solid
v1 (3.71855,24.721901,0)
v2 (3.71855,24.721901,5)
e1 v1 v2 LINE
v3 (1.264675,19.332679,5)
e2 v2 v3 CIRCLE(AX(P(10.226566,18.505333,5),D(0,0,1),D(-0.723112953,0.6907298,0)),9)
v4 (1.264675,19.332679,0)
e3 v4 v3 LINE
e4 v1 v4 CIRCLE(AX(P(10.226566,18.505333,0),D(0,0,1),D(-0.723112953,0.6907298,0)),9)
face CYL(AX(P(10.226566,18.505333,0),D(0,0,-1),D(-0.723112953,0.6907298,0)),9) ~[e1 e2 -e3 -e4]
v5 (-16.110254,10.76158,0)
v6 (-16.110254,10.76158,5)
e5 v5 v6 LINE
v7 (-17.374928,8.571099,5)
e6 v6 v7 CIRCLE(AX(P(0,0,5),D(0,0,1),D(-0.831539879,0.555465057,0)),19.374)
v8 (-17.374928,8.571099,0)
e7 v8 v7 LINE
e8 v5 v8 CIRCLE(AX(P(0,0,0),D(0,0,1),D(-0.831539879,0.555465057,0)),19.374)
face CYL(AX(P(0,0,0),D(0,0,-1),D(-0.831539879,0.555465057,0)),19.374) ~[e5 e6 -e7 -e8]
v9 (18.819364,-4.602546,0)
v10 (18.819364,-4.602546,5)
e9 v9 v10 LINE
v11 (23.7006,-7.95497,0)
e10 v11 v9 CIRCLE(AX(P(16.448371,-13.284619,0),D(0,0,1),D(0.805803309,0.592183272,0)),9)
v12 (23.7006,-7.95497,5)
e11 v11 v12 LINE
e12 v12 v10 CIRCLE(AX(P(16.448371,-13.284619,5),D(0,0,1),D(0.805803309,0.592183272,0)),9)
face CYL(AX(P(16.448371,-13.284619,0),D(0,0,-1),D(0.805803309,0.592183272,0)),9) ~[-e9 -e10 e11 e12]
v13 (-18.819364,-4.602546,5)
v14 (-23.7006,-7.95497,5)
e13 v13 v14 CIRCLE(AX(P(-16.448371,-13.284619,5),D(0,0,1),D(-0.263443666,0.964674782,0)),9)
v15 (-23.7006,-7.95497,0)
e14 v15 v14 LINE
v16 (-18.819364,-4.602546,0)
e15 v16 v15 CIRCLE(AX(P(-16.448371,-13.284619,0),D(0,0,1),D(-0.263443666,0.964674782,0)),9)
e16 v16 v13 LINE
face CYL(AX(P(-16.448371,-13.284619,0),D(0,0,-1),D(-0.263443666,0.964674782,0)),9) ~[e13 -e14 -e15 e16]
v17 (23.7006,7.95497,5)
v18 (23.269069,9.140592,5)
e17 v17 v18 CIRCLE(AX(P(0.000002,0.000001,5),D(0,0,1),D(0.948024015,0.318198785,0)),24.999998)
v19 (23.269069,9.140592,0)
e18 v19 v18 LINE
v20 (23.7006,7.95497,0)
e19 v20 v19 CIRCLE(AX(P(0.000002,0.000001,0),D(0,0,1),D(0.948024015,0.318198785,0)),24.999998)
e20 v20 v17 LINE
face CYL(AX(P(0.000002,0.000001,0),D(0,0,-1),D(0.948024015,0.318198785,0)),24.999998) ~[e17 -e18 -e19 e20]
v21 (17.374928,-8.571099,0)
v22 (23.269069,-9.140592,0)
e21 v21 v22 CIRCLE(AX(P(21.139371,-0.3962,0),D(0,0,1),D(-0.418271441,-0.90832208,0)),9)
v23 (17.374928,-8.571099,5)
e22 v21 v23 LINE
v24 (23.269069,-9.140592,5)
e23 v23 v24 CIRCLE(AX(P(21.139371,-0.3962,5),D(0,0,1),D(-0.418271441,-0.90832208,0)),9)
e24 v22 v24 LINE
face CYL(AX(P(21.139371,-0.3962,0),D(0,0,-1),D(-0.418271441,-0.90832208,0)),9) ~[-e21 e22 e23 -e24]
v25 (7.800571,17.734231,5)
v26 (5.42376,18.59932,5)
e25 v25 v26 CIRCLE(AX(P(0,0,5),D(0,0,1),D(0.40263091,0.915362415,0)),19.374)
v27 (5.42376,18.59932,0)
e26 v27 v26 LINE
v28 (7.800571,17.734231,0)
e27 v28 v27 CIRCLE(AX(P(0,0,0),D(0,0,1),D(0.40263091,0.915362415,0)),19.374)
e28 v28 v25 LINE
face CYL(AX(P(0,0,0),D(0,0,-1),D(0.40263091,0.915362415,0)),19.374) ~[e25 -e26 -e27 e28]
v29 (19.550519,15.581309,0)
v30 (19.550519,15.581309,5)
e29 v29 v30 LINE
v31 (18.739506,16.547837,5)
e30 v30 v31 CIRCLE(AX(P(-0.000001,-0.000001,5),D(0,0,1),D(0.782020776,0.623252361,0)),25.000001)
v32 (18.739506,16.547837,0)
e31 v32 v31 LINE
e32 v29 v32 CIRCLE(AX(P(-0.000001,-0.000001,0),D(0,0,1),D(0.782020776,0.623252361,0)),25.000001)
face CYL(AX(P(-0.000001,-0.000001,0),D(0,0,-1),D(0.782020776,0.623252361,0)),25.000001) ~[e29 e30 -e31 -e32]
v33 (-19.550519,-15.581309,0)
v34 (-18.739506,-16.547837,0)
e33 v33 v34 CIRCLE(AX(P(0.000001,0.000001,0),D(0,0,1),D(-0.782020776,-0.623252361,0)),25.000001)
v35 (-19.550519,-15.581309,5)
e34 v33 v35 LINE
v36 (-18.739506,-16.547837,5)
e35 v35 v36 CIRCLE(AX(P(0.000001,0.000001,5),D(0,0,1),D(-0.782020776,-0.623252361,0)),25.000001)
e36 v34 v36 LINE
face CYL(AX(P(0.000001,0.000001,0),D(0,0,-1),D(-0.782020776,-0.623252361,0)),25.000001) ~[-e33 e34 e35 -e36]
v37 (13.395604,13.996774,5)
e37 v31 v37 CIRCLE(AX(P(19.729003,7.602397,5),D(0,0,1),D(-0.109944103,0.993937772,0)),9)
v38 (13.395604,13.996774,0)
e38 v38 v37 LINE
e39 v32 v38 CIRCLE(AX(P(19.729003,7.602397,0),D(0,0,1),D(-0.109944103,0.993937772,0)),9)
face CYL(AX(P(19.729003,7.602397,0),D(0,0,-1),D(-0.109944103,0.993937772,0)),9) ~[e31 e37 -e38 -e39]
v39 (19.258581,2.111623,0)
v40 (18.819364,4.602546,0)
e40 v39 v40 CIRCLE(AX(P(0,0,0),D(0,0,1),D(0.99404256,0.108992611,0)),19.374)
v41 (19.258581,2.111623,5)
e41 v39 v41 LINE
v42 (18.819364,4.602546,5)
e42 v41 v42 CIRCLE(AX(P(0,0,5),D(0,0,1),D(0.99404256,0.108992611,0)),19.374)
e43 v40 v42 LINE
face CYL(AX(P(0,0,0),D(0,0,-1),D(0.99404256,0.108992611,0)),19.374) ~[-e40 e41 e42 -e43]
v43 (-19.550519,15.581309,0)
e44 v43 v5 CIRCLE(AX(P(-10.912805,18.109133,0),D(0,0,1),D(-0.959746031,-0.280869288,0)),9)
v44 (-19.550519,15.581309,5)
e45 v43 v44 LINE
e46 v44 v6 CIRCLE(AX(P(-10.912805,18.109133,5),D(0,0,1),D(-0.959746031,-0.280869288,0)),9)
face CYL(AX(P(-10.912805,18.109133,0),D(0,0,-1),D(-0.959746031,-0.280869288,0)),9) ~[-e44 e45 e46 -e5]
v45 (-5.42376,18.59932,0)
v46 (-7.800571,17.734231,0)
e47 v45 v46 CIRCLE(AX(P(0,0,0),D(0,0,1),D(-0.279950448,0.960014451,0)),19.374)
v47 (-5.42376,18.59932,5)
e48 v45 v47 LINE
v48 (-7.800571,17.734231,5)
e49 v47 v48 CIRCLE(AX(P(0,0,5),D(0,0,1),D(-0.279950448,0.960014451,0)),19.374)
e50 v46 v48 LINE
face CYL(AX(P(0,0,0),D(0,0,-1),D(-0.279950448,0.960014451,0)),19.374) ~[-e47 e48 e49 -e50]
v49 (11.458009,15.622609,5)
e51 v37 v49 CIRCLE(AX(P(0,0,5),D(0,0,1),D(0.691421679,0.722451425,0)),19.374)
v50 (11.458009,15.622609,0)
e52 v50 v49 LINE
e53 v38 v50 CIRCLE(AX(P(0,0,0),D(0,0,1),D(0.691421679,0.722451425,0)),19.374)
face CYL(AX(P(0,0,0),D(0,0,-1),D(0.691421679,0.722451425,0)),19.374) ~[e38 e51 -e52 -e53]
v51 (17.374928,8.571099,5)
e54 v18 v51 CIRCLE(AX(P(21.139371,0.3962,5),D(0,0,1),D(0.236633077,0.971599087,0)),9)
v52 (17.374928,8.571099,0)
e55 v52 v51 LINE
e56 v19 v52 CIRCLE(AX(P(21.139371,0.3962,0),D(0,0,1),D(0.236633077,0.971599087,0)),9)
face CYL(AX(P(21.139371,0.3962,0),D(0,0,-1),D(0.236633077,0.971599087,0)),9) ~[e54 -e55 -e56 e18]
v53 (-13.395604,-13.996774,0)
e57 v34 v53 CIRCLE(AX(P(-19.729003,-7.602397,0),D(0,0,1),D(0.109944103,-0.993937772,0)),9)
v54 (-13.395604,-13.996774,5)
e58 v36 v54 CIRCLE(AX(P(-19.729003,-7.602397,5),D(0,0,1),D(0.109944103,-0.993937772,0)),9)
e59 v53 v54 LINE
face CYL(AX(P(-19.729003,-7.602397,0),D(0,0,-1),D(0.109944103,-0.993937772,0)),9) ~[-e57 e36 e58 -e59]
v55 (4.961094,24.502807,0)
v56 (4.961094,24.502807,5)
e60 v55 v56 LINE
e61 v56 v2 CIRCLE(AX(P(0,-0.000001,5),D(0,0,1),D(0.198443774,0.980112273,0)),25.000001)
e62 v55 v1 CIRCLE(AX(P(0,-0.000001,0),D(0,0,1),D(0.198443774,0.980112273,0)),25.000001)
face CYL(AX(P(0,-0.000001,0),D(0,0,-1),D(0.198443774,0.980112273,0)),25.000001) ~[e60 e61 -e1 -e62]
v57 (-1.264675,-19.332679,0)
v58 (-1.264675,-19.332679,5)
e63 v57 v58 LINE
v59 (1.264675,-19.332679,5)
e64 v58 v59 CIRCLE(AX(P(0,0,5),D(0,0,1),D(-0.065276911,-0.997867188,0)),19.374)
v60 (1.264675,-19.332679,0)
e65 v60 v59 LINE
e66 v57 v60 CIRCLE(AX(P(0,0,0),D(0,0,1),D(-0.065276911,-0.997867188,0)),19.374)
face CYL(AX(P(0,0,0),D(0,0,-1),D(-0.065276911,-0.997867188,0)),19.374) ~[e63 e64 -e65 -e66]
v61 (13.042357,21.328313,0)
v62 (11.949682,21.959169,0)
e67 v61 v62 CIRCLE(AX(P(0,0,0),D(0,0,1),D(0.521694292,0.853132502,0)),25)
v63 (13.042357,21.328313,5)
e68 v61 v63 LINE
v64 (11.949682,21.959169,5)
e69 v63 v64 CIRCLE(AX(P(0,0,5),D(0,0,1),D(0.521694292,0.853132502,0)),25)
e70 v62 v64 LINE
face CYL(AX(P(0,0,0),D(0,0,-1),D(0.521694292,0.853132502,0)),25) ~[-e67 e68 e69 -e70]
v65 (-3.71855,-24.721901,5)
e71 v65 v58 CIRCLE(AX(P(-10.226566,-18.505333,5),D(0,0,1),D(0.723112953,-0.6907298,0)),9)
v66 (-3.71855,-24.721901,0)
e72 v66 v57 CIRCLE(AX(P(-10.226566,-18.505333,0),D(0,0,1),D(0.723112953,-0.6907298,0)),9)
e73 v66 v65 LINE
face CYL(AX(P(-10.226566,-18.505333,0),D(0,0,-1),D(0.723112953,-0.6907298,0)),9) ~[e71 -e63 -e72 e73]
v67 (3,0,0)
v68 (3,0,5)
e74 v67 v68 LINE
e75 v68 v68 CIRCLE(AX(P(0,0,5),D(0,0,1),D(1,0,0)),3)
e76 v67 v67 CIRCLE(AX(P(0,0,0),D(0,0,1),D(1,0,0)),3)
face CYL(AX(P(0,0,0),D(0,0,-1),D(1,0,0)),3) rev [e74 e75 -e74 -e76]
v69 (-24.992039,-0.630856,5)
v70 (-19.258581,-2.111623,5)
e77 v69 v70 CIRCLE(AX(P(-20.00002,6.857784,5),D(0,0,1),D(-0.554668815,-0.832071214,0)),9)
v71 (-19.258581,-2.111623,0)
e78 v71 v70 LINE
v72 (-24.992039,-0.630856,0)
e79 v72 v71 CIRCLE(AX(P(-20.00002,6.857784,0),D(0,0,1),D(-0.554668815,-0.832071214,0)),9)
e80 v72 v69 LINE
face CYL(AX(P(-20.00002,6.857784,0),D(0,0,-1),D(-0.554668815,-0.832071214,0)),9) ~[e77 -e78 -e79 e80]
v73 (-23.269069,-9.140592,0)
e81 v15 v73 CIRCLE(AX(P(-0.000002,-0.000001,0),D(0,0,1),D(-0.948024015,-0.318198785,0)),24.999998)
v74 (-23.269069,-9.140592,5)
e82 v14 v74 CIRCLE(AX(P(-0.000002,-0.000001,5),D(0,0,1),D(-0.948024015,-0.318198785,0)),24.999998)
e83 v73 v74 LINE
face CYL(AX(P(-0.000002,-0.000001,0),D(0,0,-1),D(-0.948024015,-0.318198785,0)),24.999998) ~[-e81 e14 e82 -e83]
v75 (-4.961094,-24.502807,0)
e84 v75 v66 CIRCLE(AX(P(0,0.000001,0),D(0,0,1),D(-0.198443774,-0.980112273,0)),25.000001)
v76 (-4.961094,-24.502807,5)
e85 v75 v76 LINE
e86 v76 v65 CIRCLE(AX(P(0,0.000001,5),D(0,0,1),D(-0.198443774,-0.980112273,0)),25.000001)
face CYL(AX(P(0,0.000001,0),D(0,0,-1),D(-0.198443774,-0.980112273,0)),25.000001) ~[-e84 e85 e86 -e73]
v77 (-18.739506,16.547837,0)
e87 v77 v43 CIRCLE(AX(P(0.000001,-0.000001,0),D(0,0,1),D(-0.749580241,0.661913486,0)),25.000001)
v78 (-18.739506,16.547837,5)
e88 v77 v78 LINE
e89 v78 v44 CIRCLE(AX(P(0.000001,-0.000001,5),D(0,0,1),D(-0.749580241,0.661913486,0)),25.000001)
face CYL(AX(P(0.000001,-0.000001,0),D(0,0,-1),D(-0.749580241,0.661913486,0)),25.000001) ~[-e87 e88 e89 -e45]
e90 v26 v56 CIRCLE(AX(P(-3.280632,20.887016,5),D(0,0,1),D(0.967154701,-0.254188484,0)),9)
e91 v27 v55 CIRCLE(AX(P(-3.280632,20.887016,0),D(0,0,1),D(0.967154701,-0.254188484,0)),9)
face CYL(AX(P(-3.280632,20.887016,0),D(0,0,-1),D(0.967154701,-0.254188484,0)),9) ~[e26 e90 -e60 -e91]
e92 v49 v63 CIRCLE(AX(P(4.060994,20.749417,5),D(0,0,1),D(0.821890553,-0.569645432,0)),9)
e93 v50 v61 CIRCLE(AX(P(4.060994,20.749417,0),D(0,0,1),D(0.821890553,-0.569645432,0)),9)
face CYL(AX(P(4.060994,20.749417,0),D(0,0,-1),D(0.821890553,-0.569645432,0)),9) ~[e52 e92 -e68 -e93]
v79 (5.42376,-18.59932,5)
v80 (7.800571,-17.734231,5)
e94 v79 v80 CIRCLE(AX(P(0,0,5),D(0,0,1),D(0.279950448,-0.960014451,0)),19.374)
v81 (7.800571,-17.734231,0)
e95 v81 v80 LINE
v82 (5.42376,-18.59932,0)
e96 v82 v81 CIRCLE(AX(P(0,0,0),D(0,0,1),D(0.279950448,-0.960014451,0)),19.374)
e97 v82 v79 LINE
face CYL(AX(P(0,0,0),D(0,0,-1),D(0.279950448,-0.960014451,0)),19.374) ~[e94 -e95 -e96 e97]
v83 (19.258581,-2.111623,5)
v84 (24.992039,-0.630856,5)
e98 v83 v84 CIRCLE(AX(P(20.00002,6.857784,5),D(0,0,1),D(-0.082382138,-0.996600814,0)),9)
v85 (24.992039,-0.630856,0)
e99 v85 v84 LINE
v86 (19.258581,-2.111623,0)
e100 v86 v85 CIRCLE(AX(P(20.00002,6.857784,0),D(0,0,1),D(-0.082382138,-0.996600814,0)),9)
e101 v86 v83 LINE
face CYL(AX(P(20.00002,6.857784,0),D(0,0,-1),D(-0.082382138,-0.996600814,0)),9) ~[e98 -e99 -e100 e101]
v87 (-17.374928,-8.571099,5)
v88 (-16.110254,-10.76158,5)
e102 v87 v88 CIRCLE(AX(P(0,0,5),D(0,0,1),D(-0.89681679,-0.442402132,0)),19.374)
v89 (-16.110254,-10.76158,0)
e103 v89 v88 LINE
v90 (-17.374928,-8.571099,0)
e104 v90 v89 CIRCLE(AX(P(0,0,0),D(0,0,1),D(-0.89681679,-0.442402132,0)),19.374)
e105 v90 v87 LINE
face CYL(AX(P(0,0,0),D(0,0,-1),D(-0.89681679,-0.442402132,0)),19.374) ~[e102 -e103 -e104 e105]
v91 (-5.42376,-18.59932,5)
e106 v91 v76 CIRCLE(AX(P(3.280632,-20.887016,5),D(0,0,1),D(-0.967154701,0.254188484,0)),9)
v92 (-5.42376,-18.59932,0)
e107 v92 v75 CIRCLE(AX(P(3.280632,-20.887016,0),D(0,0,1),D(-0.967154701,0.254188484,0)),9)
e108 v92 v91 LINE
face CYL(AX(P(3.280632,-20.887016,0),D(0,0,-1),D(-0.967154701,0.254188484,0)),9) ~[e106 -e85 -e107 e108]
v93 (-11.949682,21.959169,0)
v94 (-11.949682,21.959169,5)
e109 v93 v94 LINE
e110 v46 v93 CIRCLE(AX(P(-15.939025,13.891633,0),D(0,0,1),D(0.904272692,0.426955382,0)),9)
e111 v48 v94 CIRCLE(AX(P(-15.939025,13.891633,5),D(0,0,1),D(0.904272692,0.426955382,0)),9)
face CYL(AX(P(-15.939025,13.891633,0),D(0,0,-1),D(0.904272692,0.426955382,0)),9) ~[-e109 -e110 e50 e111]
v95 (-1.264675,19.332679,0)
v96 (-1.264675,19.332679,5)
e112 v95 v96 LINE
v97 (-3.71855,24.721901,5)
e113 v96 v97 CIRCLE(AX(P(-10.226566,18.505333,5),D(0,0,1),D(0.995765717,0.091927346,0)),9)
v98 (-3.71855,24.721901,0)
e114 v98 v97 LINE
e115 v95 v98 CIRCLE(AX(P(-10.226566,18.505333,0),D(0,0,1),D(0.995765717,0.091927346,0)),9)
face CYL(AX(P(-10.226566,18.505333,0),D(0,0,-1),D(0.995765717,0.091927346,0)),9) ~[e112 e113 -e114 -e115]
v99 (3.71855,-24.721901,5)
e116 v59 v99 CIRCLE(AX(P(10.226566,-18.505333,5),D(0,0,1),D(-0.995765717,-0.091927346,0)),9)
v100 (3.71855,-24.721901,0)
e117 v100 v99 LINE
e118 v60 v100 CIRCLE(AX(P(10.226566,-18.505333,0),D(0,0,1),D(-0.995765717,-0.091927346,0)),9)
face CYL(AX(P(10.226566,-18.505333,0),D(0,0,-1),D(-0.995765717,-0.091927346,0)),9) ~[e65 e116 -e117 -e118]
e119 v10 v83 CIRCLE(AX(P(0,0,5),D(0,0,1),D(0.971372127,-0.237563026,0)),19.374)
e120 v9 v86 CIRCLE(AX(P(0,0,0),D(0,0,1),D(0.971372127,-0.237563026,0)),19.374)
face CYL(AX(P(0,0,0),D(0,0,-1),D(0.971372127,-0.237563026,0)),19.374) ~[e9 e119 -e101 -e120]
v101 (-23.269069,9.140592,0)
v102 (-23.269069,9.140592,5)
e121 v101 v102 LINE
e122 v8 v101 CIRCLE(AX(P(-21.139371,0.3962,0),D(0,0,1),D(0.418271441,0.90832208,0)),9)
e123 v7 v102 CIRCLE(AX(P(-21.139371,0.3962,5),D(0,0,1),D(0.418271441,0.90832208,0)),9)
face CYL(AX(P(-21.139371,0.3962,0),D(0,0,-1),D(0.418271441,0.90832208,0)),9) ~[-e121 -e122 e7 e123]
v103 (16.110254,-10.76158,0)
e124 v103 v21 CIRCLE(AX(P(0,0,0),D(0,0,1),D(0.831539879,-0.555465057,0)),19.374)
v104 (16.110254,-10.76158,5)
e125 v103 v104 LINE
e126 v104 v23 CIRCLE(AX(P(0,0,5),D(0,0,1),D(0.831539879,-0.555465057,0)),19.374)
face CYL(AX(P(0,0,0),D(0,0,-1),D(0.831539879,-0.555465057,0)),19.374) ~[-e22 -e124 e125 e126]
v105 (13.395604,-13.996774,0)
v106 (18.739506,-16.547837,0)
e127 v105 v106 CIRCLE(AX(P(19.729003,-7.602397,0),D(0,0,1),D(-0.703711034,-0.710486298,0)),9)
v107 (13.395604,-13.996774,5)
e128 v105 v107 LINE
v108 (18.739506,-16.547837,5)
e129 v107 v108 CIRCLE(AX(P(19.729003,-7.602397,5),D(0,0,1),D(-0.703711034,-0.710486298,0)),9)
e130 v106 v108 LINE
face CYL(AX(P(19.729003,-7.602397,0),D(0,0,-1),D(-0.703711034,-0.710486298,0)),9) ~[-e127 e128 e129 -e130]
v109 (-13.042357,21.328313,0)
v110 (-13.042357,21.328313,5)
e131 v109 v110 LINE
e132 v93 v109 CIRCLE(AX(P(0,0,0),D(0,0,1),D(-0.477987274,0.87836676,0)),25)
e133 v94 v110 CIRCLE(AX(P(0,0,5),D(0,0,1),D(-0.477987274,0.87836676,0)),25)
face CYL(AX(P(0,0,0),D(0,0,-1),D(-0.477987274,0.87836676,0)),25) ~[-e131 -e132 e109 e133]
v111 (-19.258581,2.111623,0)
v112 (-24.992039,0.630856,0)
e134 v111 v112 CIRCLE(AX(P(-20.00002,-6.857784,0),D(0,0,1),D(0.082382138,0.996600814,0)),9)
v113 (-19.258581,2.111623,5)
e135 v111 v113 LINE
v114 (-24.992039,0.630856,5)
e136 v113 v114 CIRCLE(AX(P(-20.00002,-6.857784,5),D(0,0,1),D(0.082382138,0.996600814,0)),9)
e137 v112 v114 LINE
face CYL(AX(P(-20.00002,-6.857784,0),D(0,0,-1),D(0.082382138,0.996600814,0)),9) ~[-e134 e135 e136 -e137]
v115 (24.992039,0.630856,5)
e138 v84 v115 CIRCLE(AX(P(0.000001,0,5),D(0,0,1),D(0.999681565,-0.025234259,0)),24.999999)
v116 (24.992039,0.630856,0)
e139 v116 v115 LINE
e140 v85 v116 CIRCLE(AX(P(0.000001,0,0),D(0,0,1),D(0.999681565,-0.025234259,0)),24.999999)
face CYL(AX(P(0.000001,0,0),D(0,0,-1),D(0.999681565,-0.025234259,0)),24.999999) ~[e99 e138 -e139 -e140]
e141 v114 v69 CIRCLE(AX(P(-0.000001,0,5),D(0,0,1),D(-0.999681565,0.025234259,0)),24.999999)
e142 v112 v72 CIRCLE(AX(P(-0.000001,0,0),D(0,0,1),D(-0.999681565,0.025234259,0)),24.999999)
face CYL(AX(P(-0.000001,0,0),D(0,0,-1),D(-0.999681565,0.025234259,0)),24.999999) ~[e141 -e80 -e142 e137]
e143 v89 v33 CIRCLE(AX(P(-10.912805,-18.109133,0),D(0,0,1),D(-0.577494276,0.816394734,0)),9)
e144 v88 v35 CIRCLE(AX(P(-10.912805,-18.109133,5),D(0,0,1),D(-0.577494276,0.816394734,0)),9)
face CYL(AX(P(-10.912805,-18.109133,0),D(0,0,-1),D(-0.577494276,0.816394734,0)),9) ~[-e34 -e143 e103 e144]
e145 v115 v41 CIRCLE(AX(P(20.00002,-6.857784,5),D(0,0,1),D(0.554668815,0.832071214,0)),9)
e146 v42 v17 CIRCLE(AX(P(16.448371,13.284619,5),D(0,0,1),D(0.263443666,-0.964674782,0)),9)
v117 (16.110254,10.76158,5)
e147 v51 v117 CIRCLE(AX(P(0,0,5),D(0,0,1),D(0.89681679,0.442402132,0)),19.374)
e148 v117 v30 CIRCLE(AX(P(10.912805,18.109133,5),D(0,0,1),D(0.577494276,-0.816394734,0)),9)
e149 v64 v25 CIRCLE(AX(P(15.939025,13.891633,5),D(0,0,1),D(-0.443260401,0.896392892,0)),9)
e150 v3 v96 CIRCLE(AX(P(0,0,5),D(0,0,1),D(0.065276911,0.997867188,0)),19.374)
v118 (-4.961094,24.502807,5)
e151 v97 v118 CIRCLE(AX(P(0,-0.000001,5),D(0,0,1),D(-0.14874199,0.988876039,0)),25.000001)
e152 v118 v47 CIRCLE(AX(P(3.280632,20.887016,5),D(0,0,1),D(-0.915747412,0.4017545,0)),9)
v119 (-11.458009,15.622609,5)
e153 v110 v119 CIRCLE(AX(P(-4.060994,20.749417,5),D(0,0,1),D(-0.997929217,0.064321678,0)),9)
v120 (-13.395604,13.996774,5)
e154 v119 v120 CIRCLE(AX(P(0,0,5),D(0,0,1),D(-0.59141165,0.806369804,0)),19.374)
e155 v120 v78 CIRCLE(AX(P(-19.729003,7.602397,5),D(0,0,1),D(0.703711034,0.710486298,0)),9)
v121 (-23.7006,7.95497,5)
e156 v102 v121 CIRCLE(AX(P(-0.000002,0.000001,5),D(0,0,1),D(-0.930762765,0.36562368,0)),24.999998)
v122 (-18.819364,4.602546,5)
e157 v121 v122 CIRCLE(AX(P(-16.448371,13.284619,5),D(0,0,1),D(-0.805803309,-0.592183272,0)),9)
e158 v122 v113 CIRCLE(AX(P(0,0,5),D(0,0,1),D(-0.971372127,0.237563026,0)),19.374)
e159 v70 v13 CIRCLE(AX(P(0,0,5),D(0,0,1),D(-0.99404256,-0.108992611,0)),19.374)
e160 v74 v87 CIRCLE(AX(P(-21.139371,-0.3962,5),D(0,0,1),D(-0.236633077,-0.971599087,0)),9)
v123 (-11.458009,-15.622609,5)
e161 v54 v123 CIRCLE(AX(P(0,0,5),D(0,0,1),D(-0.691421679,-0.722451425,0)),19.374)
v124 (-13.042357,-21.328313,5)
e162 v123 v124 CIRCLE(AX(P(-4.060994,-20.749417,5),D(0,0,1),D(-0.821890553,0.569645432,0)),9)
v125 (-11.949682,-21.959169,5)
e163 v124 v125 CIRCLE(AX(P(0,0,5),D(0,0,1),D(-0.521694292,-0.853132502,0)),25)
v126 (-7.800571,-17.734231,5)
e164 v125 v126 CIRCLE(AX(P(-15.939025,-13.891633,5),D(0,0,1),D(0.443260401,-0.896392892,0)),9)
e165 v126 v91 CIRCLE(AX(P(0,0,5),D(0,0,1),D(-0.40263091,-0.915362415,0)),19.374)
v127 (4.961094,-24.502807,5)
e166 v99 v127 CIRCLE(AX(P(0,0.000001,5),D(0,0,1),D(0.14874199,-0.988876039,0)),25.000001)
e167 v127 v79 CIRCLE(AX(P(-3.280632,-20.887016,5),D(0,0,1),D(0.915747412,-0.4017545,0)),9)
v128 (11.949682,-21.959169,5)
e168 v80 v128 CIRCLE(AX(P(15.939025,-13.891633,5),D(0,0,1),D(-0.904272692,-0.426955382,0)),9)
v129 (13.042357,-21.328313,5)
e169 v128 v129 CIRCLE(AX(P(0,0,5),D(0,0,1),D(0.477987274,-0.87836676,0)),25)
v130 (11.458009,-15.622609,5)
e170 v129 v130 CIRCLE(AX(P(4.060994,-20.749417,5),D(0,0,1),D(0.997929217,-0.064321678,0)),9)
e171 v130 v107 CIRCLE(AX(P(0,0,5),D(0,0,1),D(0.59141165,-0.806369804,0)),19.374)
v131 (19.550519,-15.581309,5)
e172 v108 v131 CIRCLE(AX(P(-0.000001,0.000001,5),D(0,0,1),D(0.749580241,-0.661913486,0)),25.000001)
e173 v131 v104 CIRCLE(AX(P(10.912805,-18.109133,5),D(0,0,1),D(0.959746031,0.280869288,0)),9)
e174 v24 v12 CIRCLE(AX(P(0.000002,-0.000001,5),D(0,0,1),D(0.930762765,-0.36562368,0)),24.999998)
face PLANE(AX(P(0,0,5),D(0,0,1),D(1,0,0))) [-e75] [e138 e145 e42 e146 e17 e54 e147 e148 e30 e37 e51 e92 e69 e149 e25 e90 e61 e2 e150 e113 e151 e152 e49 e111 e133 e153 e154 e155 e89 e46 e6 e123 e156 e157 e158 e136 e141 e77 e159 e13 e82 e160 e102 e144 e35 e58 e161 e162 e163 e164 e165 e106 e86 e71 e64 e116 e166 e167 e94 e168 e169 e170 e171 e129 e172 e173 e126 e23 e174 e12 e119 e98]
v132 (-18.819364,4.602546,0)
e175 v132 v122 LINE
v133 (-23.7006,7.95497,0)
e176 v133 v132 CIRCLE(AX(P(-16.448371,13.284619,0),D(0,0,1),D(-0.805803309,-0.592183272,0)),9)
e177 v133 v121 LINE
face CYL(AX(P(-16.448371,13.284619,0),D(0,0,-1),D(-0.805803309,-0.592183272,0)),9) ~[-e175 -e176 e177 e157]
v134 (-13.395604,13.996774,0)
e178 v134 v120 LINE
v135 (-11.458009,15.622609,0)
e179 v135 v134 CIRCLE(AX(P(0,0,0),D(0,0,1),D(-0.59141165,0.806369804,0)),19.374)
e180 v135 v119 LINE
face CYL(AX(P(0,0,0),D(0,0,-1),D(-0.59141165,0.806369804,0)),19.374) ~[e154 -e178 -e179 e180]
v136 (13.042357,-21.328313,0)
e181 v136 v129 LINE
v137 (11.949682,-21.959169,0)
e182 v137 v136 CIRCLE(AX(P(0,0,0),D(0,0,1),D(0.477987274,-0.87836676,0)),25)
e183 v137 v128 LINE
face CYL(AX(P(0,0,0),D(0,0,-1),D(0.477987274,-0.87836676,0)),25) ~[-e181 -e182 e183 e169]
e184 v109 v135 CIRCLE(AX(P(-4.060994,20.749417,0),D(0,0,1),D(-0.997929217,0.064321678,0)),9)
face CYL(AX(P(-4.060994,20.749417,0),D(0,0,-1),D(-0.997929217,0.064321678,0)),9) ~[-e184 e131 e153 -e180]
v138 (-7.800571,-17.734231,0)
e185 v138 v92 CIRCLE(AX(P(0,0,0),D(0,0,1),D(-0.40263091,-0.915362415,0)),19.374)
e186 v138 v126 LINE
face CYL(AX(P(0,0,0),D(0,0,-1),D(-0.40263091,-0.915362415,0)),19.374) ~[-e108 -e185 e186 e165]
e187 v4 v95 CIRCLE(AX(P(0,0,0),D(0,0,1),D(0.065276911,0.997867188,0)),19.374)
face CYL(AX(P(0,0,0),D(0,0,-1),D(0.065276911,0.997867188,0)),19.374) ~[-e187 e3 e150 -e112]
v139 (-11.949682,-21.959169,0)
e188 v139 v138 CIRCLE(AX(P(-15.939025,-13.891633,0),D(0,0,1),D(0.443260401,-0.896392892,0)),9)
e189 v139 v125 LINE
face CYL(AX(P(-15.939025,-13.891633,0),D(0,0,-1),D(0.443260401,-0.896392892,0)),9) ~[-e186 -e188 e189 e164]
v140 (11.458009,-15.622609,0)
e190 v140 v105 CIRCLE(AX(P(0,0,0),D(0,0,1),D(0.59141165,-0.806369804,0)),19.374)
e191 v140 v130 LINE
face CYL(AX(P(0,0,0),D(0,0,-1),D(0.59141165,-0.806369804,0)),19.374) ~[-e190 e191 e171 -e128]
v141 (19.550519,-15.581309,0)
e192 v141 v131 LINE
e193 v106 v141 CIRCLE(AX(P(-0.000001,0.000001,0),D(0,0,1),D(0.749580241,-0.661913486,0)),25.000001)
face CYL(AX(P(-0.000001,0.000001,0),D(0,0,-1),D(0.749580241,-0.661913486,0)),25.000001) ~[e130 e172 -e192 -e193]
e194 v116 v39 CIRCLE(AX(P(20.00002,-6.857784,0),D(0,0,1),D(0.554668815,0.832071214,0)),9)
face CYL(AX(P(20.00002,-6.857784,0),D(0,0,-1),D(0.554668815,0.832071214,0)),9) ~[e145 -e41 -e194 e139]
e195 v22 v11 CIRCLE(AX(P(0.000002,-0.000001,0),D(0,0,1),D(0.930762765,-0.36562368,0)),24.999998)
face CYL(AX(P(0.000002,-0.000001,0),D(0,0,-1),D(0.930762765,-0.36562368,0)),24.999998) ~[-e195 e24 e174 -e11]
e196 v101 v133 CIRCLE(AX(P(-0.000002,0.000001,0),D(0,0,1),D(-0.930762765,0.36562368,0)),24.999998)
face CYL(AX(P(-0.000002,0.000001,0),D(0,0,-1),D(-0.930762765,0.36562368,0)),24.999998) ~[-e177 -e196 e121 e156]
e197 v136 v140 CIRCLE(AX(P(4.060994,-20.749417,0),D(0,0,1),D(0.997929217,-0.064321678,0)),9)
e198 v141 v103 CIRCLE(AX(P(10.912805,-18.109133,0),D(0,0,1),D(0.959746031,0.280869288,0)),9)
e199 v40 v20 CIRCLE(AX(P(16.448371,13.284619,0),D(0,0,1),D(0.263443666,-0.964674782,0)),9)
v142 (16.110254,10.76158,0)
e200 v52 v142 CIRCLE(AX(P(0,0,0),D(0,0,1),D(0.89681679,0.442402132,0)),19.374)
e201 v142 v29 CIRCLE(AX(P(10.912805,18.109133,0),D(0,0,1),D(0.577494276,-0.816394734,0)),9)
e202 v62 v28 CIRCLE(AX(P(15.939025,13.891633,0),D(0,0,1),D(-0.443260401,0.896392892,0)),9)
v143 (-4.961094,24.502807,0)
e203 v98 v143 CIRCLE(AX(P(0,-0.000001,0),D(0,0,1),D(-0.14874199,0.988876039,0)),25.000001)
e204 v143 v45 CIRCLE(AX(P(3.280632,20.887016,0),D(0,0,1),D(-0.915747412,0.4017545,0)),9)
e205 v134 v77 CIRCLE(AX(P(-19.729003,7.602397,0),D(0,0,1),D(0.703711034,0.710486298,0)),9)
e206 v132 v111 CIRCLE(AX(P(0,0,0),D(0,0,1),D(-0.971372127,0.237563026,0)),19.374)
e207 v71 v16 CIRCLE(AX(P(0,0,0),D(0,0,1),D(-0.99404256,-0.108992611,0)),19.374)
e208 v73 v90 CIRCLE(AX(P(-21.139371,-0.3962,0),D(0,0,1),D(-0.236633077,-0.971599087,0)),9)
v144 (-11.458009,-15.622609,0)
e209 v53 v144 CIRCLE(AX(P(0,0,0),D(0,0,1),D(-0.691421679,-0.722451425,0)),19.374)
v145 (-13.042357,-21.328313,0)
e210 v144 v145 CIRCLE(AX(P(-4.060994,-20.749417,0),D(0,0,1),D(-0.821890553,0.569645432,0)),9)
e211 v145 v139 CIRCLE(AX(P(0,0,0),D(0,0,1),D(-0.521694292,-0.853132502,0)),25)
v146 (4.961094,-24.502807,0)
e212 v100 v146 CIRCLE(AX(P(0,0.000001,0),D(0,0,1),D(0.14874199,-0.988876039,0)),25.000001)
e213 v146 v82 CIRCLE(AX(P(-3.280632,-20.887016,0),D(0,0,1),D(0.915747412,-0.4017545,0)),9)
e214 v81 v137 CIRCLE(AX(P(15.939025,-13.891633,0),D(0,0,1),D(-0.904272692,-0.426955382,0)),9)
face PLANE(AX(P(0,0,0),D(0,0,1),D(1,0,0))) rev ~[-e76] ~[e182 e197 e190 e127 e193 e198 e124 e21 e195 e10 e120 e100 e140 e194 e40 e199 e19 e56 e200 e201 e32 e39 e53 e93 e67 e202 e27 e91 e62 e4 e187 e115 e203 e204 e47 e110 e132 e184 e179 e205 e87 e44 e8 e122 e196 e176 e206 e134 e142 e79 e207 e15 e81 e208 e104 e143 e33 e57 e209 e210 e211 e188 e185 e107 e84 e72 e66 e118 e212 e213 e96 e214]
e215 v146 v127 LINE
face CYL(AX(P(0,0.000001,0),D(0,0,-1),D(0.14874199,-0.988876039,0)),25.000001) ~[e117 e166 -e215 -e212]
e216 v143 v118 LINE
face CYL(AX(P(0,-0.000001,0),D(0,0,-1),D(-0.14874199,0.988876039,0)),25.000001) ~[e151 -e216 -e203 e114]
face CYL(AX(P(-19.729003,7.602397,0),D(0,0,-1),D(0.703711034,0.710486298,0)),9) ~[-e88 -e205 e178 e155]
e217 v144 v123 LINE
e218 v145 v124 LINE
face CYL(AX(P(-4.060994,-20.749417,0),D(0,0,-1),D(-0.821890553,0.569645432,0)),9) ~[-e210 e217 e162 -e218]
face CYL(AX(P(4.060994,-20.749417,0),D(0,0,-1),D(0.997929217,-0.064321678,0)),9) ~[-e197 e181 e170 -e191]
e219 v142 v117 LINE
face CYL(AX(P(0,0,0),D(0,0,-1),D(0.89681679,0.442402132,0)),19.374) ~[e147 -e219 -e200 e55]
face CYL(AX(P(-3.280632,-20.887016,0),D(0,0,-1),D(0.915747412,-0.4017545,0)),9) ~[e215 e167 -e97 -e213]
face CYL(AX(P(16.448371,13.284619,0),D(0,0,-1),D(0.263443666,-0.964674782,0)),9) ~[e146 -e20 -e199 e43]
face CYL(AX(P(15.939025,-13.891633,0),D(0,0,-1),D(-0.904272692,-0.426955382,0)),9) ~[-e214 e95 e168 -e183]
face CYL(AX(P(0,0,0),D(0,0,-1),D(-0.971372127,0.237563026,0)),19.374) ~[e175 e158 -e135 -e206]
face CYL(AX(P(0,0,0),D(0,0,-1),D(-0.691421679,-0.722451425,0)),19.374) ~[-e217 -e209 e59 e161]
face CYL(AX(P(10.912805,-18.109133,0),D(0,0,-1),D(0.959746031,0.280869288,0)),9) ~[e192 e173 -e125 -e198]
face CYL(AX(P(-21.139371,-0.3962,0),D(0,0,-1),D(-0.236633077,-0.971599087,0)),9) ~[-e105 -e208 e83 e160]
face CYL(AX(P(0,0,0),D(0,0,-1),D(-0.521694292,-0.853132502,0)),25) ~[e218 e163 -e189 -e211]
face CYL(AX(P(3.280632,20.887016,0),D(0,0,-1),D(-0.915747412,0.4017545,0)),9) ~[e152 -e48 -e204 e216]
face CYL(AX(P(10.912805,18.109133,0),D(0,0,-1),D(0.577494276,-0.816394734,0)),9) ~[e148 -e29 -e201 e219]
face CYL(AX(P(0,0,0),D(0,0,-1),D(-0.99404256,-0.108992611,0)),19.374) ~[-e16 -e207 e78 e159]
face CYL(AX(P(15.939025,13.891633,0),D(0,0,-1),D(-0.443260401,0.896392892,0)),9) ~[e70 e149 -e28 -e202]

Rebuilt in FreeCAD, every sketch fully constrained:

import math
import FreeCAD as App
import Part
import Sketcher

V = App.Vector

doc = App.newDocument("Part")
body = doc.addObject("PartDesign::Body", "Body")

sketch1 = body.newObject("Sketcher::SketchObject", "Sketch")
sketch1.AttachmentSupport = (doc.getObject("XY_Plane"), [""])
sketch1.MapMode = "FlatFace"
sketch1.addGeometry([
    Part.ArcOfCircle(Part.Circle(V(-10.9, 18.1, 0), V(0, 0, 1), 9), math.radians(-164), math.radians(-125)),
    Part.ArcOfCircle(Part.Circle(V(0, 0, 0), V(0, 0, 1), 19.4), math.radians(146.26), math.radians(153.74)),
    Part.ArcOfCircle(Part.Circle(V(-21.1, 0.4, 0), V(0, 0, 1), 9), math.radians(65), math.radians(104)),
    Part.ArcOfCircle(Part.Circle(V(0, 0, 0), V(0, 0, 1), 25), math.radians(158.55), math.radians(161.45)),
    Part.ArcOfCircle(Part.Circle(V(-16.4, 13.3, 0), V(0, 0, 1), 9), math.radians(-144), math.radians(-105)),
    Part.ArcOfCircle(Part.Circle(V(0, 0, 0), V(0, 0, 1), 19.4), math.radians(166.26), math.radians(173.74)),
    Part.ArcOfCircle(Part.Circle(V(-20, -6.9, 0), V(0, 0, 1), 9), math.radians(85), math.radians(124)),
    Part.ArcOfCircle(Part.Circle(V(0, 0, 0), V(0, 0, 1), 25), math.radians(178.55), math.radians(181.45)),
    Part.ArcOfCircle(Part.Circle(V(-20, 6.9, 0), V(0, 0, 1), 9), math.radians(-124), math.radians(-85)),
    Part.ArcOfCircle(Part.Circle(V(0, 0, 0), V(0, 0, 1), 19.4), math.radians(-173.74), math.radians(-166.26)),
    Part.ArcOfCircle(Part.Circle(V(-16.4, -13.3, 0), V(0, 0, 1), 9), math.radians(105), math.radians(144)),
    Part.ArcOfCircle(Part.Circle(V(0, 0, 0), V(0, 0, 1), 25), math.radians(-161.45), math.radians(-158.55)),
    Part.ArcOfCircle(Part.Circle(V(-21.1, -0.4, 0), V(0, 0, 1), 9), math.radians(-104), math.radians(-65)),
    Part.ArcOfCircle(Part.Circle(V(0, 0, 0), V(0, 0, 1), 19.4), math.radians(-153.74), math.radians(-146.26)),
    Part.ArcOfCircle(Part.Circle(V(-10.9, -18.1, 0), V(0, 0, 1), 9), math.radians(125), math.radians(164)),
    Part.ArcOfCircle(Part.Circle(V(0, 0, 0), V(0, 0, 1), 25), math.radians(-141.45), math.radians(-138.55)),
    Part.ArcOfCircle(Part.Circle(V(-19.7, -7.6, 0), V(0, 0, 1), 9), math.radians(-84), math.radians(-45)),
    Part.ArcOfCircle(Part.Circle(V(0, 0, 0), V(0, 0, 1), 19.4), math.radians(-133.74), math.radians(-126.26)),
    Part.ArcOfCircle(Part.Circle(V(-4.1, -20.7, 0), V(0, 0, 1), 9), math.radians(145), math.radians(184)),
    Part.ArcOfCircle(Part.Circle(V(0, 0, 0), V(0, 0, 1), 25), math.radians(-121.45), math.radians(-118.55)),
    Part.ArcOfCircle(Part.Circle(V(-15.9, -13.9, 0), V(0, 0, 1), 9), math.radians(-64), math.radians(-25)),
    Part.ArcOfCircle(Part.Circle(V(0, 0, 0), V(0, 0, 1), 19.4), math.radians(-113.74), math.radians(-106.26)),
    Part.ArcOfCircle(Part.Circle(V(3.3, -20.9, 0), V(0, 0, 1), 9), math.radians(165), math.radians(204)),
    Part.ArcOfCircle(Part.Circle(V(0, 0, 0), V(0, 0, 1), 25), math.radians(-101.45), math.radians(-98.55)),
    Part.ArcOfCircle(Part.Circle(V(-10.2, -18.5, 0), V(0, 0, 1), 9), math.radians(-44), math.radians(-5)),
    Part.ArcOfCircle(Part.Circle(V(0, 0, 0), V(0, 0, 1), 19.4), math.radians(-93.74), math.radians(-86.26)),
    Part.ArcOfCircle(Part.Circle(V(10.2, -18.5, 0), V(0, 0, 1), 9), math.radians(-175), math.radians(-136)),
    Part.ArcOfCircle(Part.Circle(V(0, 0, 0), V(0, 0, 1), 25), math.radians(-81.45), math.radians(-78.55)),
    Part.ArcOfCircle(Part.Circle(V(-3.3, -20.9, 0), V(0, 0, 1), 9), math.radians(-24), math.radians(15)),
    Part.ArcOfCircle(Part.Circle(V(0, 0, 0), V(0, 0, 1), 19.4), math.radians(-73.74), math.radians(-66.26)),
    Part.ArcOfCircle(Part.Circle(V(15.9, -13.9, 0), V(0, 0, 1), 9), math.radians(-155), math.radians(-116)),
    Part.ArcOfCircle(Part.Circle(V(0, 0, 0), V(0, 0, 1), 25), math.radians(-61.45), math.radians(-58.55)),
    Part.ArcOfCircle(Part.Circle(V(4.1, -20.7, 0), V(0, 0, 1), 9), math.radians(-4), math.radians(35)),
    Part.ArcOfCircle(Part.Circle(V(0, 0, 0), V(0, 0, 1), 19.4), math.radians(-53.74), math.radians(-46.26)),
    Part.ArcOfCircle(Part.Circle(V(19.7, -7.6, 0), V(0, 0, 1), 9), math.radians(-135), math.radians(-96)),
    Part.ArcOfCircle(Part.Circle(V(0, 0, 0), V(0, 0, 1), 25), math.radians(-41.45), math.radians(-38.55)),
    Part.ArcOfCircle(Part.Circle(V(10.9, -18.1, 0), V(0, 0, 1), 9), math.radians(16), math.radians(55)),
    Part.ArcOfCircle(Part.Circle(V(0, 0, 0), V(0, 0, 1), 19.4), math.radians(-33.74), math.radians(-26.26)),
    Part.ArcOfCircle(Part.Circle(V(21.1, -0.4, 0), V(0, 0, 1), 9), math.radians(-115), math.radians(-76)),
    Part.ArcOfCircle(Part.Circle(V(0, 0, 0), V(0, 0, 1), 25), math.radians(-21.45), math.radians(-18.55)),
    Part.ArcOfCircle(Part.Circle(V(16.4, -13.3, 0), V(0, 0, 1), 9), math.radians(36), math.radians(75)),
    Part.ArcOfCircle(Part.Circle(V(0, 0, 0), V(0, 0, 1), 19.4), math.radians(-13.74), math.radians(-6.26)),
    Part.ArcOfCircle(Part.Circle(V(20, 6.9, 0), V(0, 0, 1), 9), math.radians(-95), math.radians(-56)),
    Part.ArcOfCircle(Part.Circle(V(0, 0, 0), V(0, 0, 1), 25), math.radians(-1.45), math.radians(1.45)),
    Part.ArcOfCircle(Part.Circle(V(20, -6.9, 0), V(0, 0, 1), 9), math.radians(56), math.radians(95)),
    Part.ArcOfCircle(Part.Circle(V(0, 0, 0), V(0, 0, 1), 19.4), math.radians(6.26), math.radians(13.74)),
    Part.ArcOfCircle(Part.Circle(V(16.4, 13.3, 0), V(0, 0, 1), 9), math.radians(-75), math.radians(-36)),
    Part.ArcOfCircle(Part.Circle(V(0, 0, 0), V(0, 0, 1), 25), math.radians(18.55), math.radians(21.45)),
    Part.ArcOfCircle(Part.Circle(V(21.1, 0.4, 0), V(0, 0, 1), 9), math.radians(76), math.radians(115)),
    Part.ArcOfCircle(Part.Circle(V(0, 0, 0), V(0, 0, 1), 19.4), math.radians(26.26), math.radians(33.74)),
    Part.ArcOfCircle(Part.Circle(V(10.9, 18.1, 0), V(0, 0, 1), 9), math.radians(-55), math.radians(-16)),
    Part.ArcOfCircle(Part.Circle(V(0, 0, 0), V(0, 0, 1), 25), math.radians(38.55), math.radians(41.45)),
    Part.ArcOfCircle(Part.Circle(V(19.7, 7.6, 0), V(0, 0, 1), 9), math.radians(96), math.radians(135)),
    Part.ArcOfCircle(Part.Circle(V(0, 0, 0), V(0, 0, 1), 19.4), math.radians(46.26), math.radians(53.74)),
    Part.ArcOfCircle(Part.Circle(V(4.1, 20.7, 0), V(0, 0, 1), 9), math.radians(-35), math.radians(4)),
    Part.ArcOfCircle(Part.Circle(V(0, 0, 0), V(0, 0, 1), 25), math.radians(58.55), math.radians(61.45)),
    Part.ArcOfCircle(Part.Circle(V(15.9, 13.9, 0), V(0, 0, 1), 9), math.radians(116), math.radians(155)),
    Part.ArcOfCircle(Part.Circle(V(0, 0, 0), V(0, 0, 1), 19.4), math.radians(66.26), math.radians(73.74)),
    Part.ArcOfCircle(Part.Circle(V(-3.3, 20.9, 0), V(0, 0, 1), 9), math.radians(-15), math.radians(24)),
    Part.ArcOfCircle(Part.Circle(V(0, 0, 0), V(0, 0, 1), 25), math.radians(78.55), math.radians(81.45)),
    Part.ArcOfCircle(Part.Circle(V(10.2, 18.5, 0), V(0, 0, 1), 9), math.radians(136), math.radians(175)),
    Part.ArcOfCircle(Part.Circle(V(0, 0, 0), V(0, 0, 1), 19.4), math.radians(86.26), math.radians(93.74)),
    Part.ArcOfCircle(Part.Circle(V(-10.2, 18.5, 0), V(0, 0, 1), 9), math.radians(5), math.radians(44)),
    Part.ArcOfCircle(Part.Circle(V(0, 0, 0), V(0, 0, 1), 25), math.radians(98.55), math.radians(101.45)),
    Part.ArcOfCircle(Part.Circle(V(3.3, 20.9, 0), V(0, 0, 1), 9), math.radians(156), math.radians(195)),
    Part.ArcOfCircle(Part.Circle(V(0, 0, 0), V(0, 0, 1), 19.4), math.radians(106.26), math.radians(113.74)),
    Part.ArcOfCircle(Part.Circle(V(-15.9, 13.9, 0), V(0, 0, 1), 9), math.radians(25), math.radians(64)),
    Part.ArcOfCircle(Part.Circle(V(0, 0, 0), V(0, 0, 1), 25), math.radians(118.55), math.radians(121.45)),
    Part.ArcOfCircle(Part.Circle(V(-4.1, 20.7, 0), V(0, 0, 1), 9), math.radians(176), math.radians(215)),
    Part.ArcOfCircle(Part.Circle(V(0, 0, 0), V(0, 0, 1), 19.4), math.radians(126.26), math.radians(133.74)),
    Part.ArcOfCircle(Part.Circle(V(-19.7, 7.6, 0), V(0, 0, 1), 9), math.radians(45), math.radians(84)),
    Part.ArcOfCircle(Part.Circle(V(0, 0, 0), V(0, 0, 1), 25), math.radians(138.55), math.radians(141.45)),
    Part.Circle(V(0, 0, 0), V(0, 0, 1), 3),
], False)
sketch1.addConstraint([
    Sketcher.Constraint("Coincident", 0, 2, 1, 1),
    Sketcher.Constraint("Coincident", 1, 2, 2, 1),
    Sketcher.Constraint("Coincident", 2, 2, 3, 1),
    Sketcher.Constraint("Coincident", 3, 2, 4, 1),
    Sketcher.Constraint("Coincident", 4, 2, 5, 1),
    Sketcher.Constraint("Coincident", 5, 2, 6, 1),
    Sketcher.Constraint("Coincident", 6, 2, 7, 1),
    Sketcher.Constraint("Coincident", 7, 2, 8, 1),
    Sketcher.Constraint("Coincident", 8, 2, 9, 1),
    Sketcher.Constraint("Coincident", 9, 2, 10, 1),
    Sketcher.Constraint("Coincident", 10, 2, 11, 1),
    Sketcher.Constraint("Coincident", 11, 2, 12, 1),
    Sketcher.Constraint("Coincident", 12, 2, 13, 1),
    Sketcher.Constraint("Coincident", 13, 2, 14, 1),
    Sketcher.Constraint("Coincident", 14, 2, 15, 1),
    Sketcher.Constraint("Coincident", 15, 2, 16, 1),
    Sketcher.Constraint("Coincident", 16, 2, 17, 1),
    Sketcher.Constraint("Coincident", 17, 2, 18, 1),
    Sketcher.Constraint("Coincident", 18, 2, 19, 1),
    Sketcher.Constraint("Coincident", 19, 2, 20, 1),
    Sketcher.Constraint("Coincident", 20, 2, 21, 1),
    Sketcher.Constraint("Coincident", 21, 2, 22, 1),
    Sketcher.Constraint("Coincident", 22, 2, 23, 1),
    Sketcher.Constraint("Coincident", 23, 2, 24, 1),
    Sketcher.Constraint("Coincident", 24, 2, 25, 1),
    Sketcher.Constraint("Coincident", 25, 2, 26, 1),
    Sketcher.Constraint("Coincident", 26, 2, 27, 1),
    Sketcher.Constraint("Coincident", 27, 2, 28, 1),
    Sketcher.Constraint("Coincident", 28, 2, 29, 1),
    Sketcher.Constraint("Coincident", 29, 2, 30, 1),
    Sketcher.Constraint("Coincident", 30, 2, 31, 1),
    Sketcher.Constraint("Coincident", 31, 2, 32, 1),
    Sketcher.Constraint("Coincident", 32, 2, 33, 1),
    Sketcher.Constraint("Coincident", 33, 2, 34, 1),
    Sketcher.Constraint("Coincident", 34, 2, 35, 1),
    Sketcher.Constraint("Coincident", 35, 2, 36, 1),
    Sketcher.Constraint("Coincident", 36, 2, 37, 1),
    Sketcher.Constraint("Coincident", 37, 2, 38, 1),
    Sketcher.Constraint("Coincident", 38, 2, 39, 1),
    Sketcher.Constraint("Coincident", 39, 2, 40, 1),
    Sketcher.Constraint("Coincident", 40, 2, 41, 1),
    Sketcher.Constraint("Coincident", 41, 2, 42, 1),
    Sketcher.Constraint("Coincident", 42, 2, 43, 1),
    Sketcher.Constraint("Coincident", 43, 2, 44, 1),
    Sketcher.Constraint("Coincident", 44, 2, 45, 1),
    Sketcher.Constraint("Coincident", 45, 2, 46, 1),
    Sketcher.Constraint("Coincident", 46, 2, 47, 1),
    Sketcher.Constraint("Coincident", 47, 2, 48, 1),
    Sketcher.Constraint("Coincident", 48, 2, 49, 1),
    Sketcher.Constraint("Coincident", 49, 2, 50, 1),
    Sketcher.Constraint("Coincident", 50, 2, 51, 1),
    Sketcher.Constraint("Coincident", 51, 2, 52, 1),
    Sketcher.Constraint("Coincident", 52, 2, 53, 1),
    Sketcher.Constraint("Coincident", 53, 2, 54, 1),
    Sketcher.Constraint("Coincident", 54, 2, 55, 1),
    Sketcher.Constraint("Coincident", 55, 2, 56, 1),
    Sketcher.Constraint("Coincident", 56, 2, 57, 1),
    Sketcher.Constraint("Coincident", 57, 2, 58, 1),
    Sketcher.Constraint("Coincident", 58, 2, 59, 1),
    Sketcher.Constraint("Coincident", 59, 2, 60, 1),
    Sketcher.Constraint("Coincident", 60, 2, 61, 1),
    Sketcher.Constraint("Coincident", 61, 2, 62, 1),
    Sketcher.Constraint("Coincident", 62, 2, 63, 1),
    Sketcher.Constraint("Coincident", 63, 2, 64, 1),
    Sketcher.Constraint("Coincident", 64, 2, 65, 1),
    Sketcher.Constraint("Coincident", 65, 2, 66, 1),
    Sketcher.Constraint("Coincident", 66, 2, 67, 1),
    Sketcher.Constraint("Coincident", 67, 2, 68, 1),
    Sketcher.Constraint("Coincident", 68, 2, 69, 1),
    Sketcher.Constraint("Coincident", 69, 2, 70, 1),
    Sketcher.Constraint("Coincident", 70, 2, 71, 1),
    Sketcher.Constraint("Coincident", 71, 2, 0, 1),
    Sketcher.Constraint("Coincident", 1, 3, -1, 1),
    Sketcher.Constraint("Coincident", 3, 3, -1, 1),
    Sketcher.Constraint("Coincident", 5, 3, -1, 1),
    Sketcher.Constraint("Coincident", 7, 3, -1, 1),
    Sketcher.Constraint("Coincident", 9, 3, -1, 1),
    Sketcher.Constraint("Coincident", 11, 3, -1, 1),
    Sketcher.Constraint("Coincident", 13, 3, -1, 1),
    Sketcher.Constraint("Coincident", 15, 3, -1, 1),
    Sketcher.Constraint("Coincident", 17, 3, -1, 1),
    Sketcher.Constraint("Coincident", 19, 3, -1, 1),
    Sketcher.Constraint("Coincident", 21, 3, -1, 1),
    Sketcher.Constraint("Coincident", 23, 3, -1, 1),
    Sketcher.Constraint("Coincident", 25, 3, -1, 1),
    Sketcher.Constraint("Coincident", 27, 3, -1, 1),
    Sketcher.Constraint("Coincident", 29, 3, -1, 1),
    Sketcher.Constraint("Coincident", 31, 3, -1, 1),
    Sketcher.Constraint("Coincident", 33, 3, -1, 1),
    Sketcher.Constraint("Coincident", 35, 3, -1, 1),
    Sketcher.Constraint("Coincident", 37, 3, -1, 1),
    Sketcher.Constraint("Coincident", 39, 3, -1, 1),
    Sketcher.Constraint("Coincident", 41, 3, -1, 1),
    Sketcher.Constraint("Coincident", 43, 3, -1, 1),
    Sketcher.Constraint("Coincident", 45, 3, -1, 1),
    Sketcher.Constraint("Coincident", 47, 3, -1, 1),
    Sketcher.Constraint("Coincident", 49, 3, -1, 1),
    Sketcher.Constraint("Coincident", 51, 3, -1, 1),
    Sketcher.Constraint("Coincident", 53, 3, -1, 1),
    Sketcher.Constraint("Coincident", 55, 3, -1, 1),
    Sketcher.Constraint("Coincident", 57, 3, -1, 1),
    Sketcher.Constraint("Coincident", 59, 3, -1, 1),
    Sketcher.Constraint("Coincident", 61, 3, -1, 1),
    Sketcher.Constraint("Coincident", 63, 3, -1, 1),
    Sketcher.Constraint("Coincident", 65, 3, -1, 1),
    Sketcher.Constraint("Coincident", 67, 3, -1, 1),
    Sketcher.Constraint("Coincident", 69, 3, -1, 1),
    Sketcher.Constraint("Coincident", 71, 3, -1, 1),
    Sketcher.Constraint("Coincident", 72, 3, -1, 1),
    Sketcher.Constraint("Equal", 0, 2),
    Sketcher.Constraint("Equal", 2, 4),
    Sketcher.Constraint("Equal", 1, 5),
    Sketcher.Constraint("Equal", 4, 6),
    Sketcher.Constraint("Equal", 3, 7),
    Sketcher.Constraint("Equal", 6, 8),
    Sketcher.Constraint("Equal", 5, 9),
    Sketcher.Constraint("Equal", 8, 10),
    Sketcher.Constraint("Equal", 7, 11),
    Sketcher.Constraint("Equal", 10, 12),
    Sketcher.Constraint("Equal", 9, 13),
    Sketcher.Constraint("Equal", 12, 14),
    Sketcher.Constraint("Equal", 7, 15),
    Sketcher.Constraint("Equal", 14, 16),
    Sketcher.Constraint("Equal", 13, 17),
    Sketcher.Constraint("Equal", 16, 18),
    Sketcher.Constraint("Equal", 15, 19),
    Sketcher.Constraint("Equal", 18, 20),
    Sketcher.Constraint("Equal", 17, 21),
    Sketcher.Constraint("Equal", 20, 22),
    Sketcher.Constraint("Equal", 19, 23),
    Sketcher.Constraint("Equal", 22, 24),
    Sketcher.Constraint("Equal", 21, 25),
    Sketcher.Constraint("Equal", 24, 26),
    Sketcher.Constraint("Equal", 23, 27),
    Sketcher.Constraint("Equal", 26, 28),
    Sketcher.Constraint("Equal", 25, 29),
    Sketcher.Constraint("Equal", 28, 30),
    Sketcher.Constraint("Equal", 27, 31),
    Sketcher.Constraint("Equal", 30, 32),
    Sketcher.Constraint("Equal", 29, 33),
    Sketcher.Constraint("Equal", 32, 34),
    Sketcher.Constraint("Equal", 31, 35),
    Sketcher.Constraint("Equal", 34, 36),
    Sketcher.Constraint("Equal", 33, 37),
    Sketcher.Constraint("Equal", 36, 38),
    Sketcher.Constraint("Equal", 31, 39),
    Sketcher.Constraint("Equal", 38, 40),
    Sketcher.Constraint("Equal", 37, 41),
    Sketcher.Constraint("Equal", 40, 42),
    Sketcher.Constraint("Equal", 39, 43),
    Sketcher.Constraint("Equal", 42, 44),
    Sketcher.Constraint("Equal", 41, 45),
    Sketcher.Constraint("Equal", 44, 46),
    Sketcher.Constraint("Equal", 43, 47),
    Sketcher.Constraint("Equal", 46, 48),
    Sketcher.Constraint("Equal", 45, 49),
    Sketcher.Constraint("Equal", 48, 50),
    Sketcher.Constraint("Equal", 43, 51),
    Sketcher.Constraint("Equal", 50, 52),
    Sketcher.Constraint("Equal", 49, 53),
    Sketcher.Constraint("Equal", 52, 54),
    Sketcher.Constraint("Equal", 51, 55),
    Sketcher.Constraint("Equal", 54, 56),
    Sketcher.Constraint("Equal", 53, 57),
    Sketcher.Constraint("Equal", 56, 58),
    Sketcher.Constraint("Equal", 55, 59),
    Sketcher.Constraint("Equal", 58, 60),
    Sketcher.Constraint("Equal", 57, 61),
    Sketcher.Constraint("Equal", 60, 62),
    Sketcher.Constraint("Equal", 59, 63),
    Sketcher.Constraint("Equal", 62, 64),
    Sketcher.Constraint("Equal", 61, 65),
    Sketcher.Constraint("Equal", 64, 66),
    Sketcher.Constraint("Equal", 63, 67),
    Sketcher.Constraint("Equal", 66, 68),
    Sketcher.Constraint("Equal", 65, 69),
    Sketcher.Constraint("Equal", 68, 70),
    Sketcher.Constraint("Equal", 67, 71),
    Sketcher.Constraint("Symmetric", 0, 3, 36, 3, -1, 1),
    Sketcher.Constraint("Symmetric", 2, 3, 38, 3, -1, 1),
    Sketcher.Constraint("Symmetric", 4, 3, 40, 3, -1, 1),
    Sketcher.Constraint("Symmetric", 6, 3, 42, 3, -1, 1),
    Sketcher.Constraint("Symmetric", 8, 3, 44, 3, -1, 1),
    Sketcher.Constraint("Symmetric", 10, 3, 46, 3, -1, 1),
    Sketcher.Constraint("Symmetric", 12, 3, 48, 3, -1, 1),
    Sketcher.Constraint("Symmetric", 14, 3, 50, 3, -1, 1),
    Sketcher.Constraint("Symmetric", 16, 3, 52, 3, -1, 1),
    Sketcher.Constraint("Symmetric", 18, 3, 54, 3, -1, 1),
    Sketcher.Constraint("Symmetric", 20, 3, 56, 3, -1, 1),
    Sketcher.Constraint("Symmetric", 22, 3, 58, 3, -1, 1),
    Sketcher.Constraint("Symmetric", 24, 3, 60, 3, -1, 1),
    Sketcher.Constraint("Symmetric", 26, 3, 62, 3, -1, 1),
    Sketcher.Constraint("Symmetric", 28, 3, 64, 3, -1, 1),
    Sketcher.Constraint("Symmetric", 30, 3, 66, 3, -1, 1),
    Sketcher.Constraint("Symmetric", 32, 3, 68, 3, -1, 1),
    Sketcher.Constraint("Symmetric", 34, 3, 70, 3, -1, 1),
    Sketcher.Constraint("Symmetric", 24, 3, 26, 3, -2),
    Sketcher.Constraint("Symmetric", 22, 3, 28, 3, -2),
    Sketcher.Constraint("Symmetric", 20, 3, 30, 3, -2),
    Sketcher.Constraint("Symmetric", 18, 3, 32, 3, -2),
    Sketcher.Constraint("Symmetric", 16, 3, 34, 3, -2),
    Sketcher.Constraint("Symmetric", 14, 3, 36, 3, -2),
    Sketcher.Constraint("Symmetric", 12, 3, 38, 3, -2),
    Sketcher.Constraint("Symmetric", 10, 3, 40, 3, -2),
    Sketcher.Constraint("Symmetric", 8, 3, 42, 3, -2),
    Sketcher.Constraint("Diameter", 72, 6.0),
    Sketcher.Constraint("Radius", 0, 9.0),
    Sketcher.Constraint("Radius", 3, 24.999998),
    Sketcher.Constraint("Radius", 1, 19.374),
    Sketcher.Constraint("DistanceY", -1, 1, 2, 3, 0.3962),
    Sketcher.Constraint("DistanceY", -1, 1, 1, 2, 8.571099),
    Sketcher.Constraint("DistanceX", 3, 2, -1, 1, 23.7006),
    Sketcher.Constraint("DistanceY", 23, 2, -1, 1, 24.721901),
    Sketcher.Constraint("DistanceX", 4, 3, -1, 1, 16.448371),
    Sketcher.Constraint("DistanceX", 6, 3, -1, 1, 20.00002),
    Sketcher.Constraint("DistanceY", -1, 1, 0, 2, 10.76158),
    Sketcher.Constraint("DistanceX", 5, 2, -1, 1, 19.258581),
    Sketcher.Constraint("DistanceX", 14, 2, -1, 1, 19.550519),
    Sketcher.Constraint("DistanceX", 17, 2, -1, 1, 11.458009),
    Sketcher.Constraint("DistanceX", 19, 2, -1, 1, 11.949682),
    Sketcher.Constraint("DistanceX", 20, 2, -1, 1, 7.800571),
    Sketcher.Constraint("DistanceX", 21, 2, -1, 1, 5.42376),
    Sketcher.Constraint("DistanceY", 24, 2, -1, 1, 19.332679),
    Sketcher.Constraint("DistanceX", 16, 3, -1, 1, 19.729003),
    Sketcher.Constraint("DistanceY", 16, 3, -1, 1, 7.602397),
    Sketcher.Constraint("DistanceX", 18, 3, -1, 1, 4.060994),
    Sketcher.Constraint("DistanceX", -1, 1, 22, 3, 3.280632),
])
pad1 = body.newObject("PartDesign::Pad", "Pad")
pad1.Profile = sketch1
pad1.Length = 5

doc.recompute()
